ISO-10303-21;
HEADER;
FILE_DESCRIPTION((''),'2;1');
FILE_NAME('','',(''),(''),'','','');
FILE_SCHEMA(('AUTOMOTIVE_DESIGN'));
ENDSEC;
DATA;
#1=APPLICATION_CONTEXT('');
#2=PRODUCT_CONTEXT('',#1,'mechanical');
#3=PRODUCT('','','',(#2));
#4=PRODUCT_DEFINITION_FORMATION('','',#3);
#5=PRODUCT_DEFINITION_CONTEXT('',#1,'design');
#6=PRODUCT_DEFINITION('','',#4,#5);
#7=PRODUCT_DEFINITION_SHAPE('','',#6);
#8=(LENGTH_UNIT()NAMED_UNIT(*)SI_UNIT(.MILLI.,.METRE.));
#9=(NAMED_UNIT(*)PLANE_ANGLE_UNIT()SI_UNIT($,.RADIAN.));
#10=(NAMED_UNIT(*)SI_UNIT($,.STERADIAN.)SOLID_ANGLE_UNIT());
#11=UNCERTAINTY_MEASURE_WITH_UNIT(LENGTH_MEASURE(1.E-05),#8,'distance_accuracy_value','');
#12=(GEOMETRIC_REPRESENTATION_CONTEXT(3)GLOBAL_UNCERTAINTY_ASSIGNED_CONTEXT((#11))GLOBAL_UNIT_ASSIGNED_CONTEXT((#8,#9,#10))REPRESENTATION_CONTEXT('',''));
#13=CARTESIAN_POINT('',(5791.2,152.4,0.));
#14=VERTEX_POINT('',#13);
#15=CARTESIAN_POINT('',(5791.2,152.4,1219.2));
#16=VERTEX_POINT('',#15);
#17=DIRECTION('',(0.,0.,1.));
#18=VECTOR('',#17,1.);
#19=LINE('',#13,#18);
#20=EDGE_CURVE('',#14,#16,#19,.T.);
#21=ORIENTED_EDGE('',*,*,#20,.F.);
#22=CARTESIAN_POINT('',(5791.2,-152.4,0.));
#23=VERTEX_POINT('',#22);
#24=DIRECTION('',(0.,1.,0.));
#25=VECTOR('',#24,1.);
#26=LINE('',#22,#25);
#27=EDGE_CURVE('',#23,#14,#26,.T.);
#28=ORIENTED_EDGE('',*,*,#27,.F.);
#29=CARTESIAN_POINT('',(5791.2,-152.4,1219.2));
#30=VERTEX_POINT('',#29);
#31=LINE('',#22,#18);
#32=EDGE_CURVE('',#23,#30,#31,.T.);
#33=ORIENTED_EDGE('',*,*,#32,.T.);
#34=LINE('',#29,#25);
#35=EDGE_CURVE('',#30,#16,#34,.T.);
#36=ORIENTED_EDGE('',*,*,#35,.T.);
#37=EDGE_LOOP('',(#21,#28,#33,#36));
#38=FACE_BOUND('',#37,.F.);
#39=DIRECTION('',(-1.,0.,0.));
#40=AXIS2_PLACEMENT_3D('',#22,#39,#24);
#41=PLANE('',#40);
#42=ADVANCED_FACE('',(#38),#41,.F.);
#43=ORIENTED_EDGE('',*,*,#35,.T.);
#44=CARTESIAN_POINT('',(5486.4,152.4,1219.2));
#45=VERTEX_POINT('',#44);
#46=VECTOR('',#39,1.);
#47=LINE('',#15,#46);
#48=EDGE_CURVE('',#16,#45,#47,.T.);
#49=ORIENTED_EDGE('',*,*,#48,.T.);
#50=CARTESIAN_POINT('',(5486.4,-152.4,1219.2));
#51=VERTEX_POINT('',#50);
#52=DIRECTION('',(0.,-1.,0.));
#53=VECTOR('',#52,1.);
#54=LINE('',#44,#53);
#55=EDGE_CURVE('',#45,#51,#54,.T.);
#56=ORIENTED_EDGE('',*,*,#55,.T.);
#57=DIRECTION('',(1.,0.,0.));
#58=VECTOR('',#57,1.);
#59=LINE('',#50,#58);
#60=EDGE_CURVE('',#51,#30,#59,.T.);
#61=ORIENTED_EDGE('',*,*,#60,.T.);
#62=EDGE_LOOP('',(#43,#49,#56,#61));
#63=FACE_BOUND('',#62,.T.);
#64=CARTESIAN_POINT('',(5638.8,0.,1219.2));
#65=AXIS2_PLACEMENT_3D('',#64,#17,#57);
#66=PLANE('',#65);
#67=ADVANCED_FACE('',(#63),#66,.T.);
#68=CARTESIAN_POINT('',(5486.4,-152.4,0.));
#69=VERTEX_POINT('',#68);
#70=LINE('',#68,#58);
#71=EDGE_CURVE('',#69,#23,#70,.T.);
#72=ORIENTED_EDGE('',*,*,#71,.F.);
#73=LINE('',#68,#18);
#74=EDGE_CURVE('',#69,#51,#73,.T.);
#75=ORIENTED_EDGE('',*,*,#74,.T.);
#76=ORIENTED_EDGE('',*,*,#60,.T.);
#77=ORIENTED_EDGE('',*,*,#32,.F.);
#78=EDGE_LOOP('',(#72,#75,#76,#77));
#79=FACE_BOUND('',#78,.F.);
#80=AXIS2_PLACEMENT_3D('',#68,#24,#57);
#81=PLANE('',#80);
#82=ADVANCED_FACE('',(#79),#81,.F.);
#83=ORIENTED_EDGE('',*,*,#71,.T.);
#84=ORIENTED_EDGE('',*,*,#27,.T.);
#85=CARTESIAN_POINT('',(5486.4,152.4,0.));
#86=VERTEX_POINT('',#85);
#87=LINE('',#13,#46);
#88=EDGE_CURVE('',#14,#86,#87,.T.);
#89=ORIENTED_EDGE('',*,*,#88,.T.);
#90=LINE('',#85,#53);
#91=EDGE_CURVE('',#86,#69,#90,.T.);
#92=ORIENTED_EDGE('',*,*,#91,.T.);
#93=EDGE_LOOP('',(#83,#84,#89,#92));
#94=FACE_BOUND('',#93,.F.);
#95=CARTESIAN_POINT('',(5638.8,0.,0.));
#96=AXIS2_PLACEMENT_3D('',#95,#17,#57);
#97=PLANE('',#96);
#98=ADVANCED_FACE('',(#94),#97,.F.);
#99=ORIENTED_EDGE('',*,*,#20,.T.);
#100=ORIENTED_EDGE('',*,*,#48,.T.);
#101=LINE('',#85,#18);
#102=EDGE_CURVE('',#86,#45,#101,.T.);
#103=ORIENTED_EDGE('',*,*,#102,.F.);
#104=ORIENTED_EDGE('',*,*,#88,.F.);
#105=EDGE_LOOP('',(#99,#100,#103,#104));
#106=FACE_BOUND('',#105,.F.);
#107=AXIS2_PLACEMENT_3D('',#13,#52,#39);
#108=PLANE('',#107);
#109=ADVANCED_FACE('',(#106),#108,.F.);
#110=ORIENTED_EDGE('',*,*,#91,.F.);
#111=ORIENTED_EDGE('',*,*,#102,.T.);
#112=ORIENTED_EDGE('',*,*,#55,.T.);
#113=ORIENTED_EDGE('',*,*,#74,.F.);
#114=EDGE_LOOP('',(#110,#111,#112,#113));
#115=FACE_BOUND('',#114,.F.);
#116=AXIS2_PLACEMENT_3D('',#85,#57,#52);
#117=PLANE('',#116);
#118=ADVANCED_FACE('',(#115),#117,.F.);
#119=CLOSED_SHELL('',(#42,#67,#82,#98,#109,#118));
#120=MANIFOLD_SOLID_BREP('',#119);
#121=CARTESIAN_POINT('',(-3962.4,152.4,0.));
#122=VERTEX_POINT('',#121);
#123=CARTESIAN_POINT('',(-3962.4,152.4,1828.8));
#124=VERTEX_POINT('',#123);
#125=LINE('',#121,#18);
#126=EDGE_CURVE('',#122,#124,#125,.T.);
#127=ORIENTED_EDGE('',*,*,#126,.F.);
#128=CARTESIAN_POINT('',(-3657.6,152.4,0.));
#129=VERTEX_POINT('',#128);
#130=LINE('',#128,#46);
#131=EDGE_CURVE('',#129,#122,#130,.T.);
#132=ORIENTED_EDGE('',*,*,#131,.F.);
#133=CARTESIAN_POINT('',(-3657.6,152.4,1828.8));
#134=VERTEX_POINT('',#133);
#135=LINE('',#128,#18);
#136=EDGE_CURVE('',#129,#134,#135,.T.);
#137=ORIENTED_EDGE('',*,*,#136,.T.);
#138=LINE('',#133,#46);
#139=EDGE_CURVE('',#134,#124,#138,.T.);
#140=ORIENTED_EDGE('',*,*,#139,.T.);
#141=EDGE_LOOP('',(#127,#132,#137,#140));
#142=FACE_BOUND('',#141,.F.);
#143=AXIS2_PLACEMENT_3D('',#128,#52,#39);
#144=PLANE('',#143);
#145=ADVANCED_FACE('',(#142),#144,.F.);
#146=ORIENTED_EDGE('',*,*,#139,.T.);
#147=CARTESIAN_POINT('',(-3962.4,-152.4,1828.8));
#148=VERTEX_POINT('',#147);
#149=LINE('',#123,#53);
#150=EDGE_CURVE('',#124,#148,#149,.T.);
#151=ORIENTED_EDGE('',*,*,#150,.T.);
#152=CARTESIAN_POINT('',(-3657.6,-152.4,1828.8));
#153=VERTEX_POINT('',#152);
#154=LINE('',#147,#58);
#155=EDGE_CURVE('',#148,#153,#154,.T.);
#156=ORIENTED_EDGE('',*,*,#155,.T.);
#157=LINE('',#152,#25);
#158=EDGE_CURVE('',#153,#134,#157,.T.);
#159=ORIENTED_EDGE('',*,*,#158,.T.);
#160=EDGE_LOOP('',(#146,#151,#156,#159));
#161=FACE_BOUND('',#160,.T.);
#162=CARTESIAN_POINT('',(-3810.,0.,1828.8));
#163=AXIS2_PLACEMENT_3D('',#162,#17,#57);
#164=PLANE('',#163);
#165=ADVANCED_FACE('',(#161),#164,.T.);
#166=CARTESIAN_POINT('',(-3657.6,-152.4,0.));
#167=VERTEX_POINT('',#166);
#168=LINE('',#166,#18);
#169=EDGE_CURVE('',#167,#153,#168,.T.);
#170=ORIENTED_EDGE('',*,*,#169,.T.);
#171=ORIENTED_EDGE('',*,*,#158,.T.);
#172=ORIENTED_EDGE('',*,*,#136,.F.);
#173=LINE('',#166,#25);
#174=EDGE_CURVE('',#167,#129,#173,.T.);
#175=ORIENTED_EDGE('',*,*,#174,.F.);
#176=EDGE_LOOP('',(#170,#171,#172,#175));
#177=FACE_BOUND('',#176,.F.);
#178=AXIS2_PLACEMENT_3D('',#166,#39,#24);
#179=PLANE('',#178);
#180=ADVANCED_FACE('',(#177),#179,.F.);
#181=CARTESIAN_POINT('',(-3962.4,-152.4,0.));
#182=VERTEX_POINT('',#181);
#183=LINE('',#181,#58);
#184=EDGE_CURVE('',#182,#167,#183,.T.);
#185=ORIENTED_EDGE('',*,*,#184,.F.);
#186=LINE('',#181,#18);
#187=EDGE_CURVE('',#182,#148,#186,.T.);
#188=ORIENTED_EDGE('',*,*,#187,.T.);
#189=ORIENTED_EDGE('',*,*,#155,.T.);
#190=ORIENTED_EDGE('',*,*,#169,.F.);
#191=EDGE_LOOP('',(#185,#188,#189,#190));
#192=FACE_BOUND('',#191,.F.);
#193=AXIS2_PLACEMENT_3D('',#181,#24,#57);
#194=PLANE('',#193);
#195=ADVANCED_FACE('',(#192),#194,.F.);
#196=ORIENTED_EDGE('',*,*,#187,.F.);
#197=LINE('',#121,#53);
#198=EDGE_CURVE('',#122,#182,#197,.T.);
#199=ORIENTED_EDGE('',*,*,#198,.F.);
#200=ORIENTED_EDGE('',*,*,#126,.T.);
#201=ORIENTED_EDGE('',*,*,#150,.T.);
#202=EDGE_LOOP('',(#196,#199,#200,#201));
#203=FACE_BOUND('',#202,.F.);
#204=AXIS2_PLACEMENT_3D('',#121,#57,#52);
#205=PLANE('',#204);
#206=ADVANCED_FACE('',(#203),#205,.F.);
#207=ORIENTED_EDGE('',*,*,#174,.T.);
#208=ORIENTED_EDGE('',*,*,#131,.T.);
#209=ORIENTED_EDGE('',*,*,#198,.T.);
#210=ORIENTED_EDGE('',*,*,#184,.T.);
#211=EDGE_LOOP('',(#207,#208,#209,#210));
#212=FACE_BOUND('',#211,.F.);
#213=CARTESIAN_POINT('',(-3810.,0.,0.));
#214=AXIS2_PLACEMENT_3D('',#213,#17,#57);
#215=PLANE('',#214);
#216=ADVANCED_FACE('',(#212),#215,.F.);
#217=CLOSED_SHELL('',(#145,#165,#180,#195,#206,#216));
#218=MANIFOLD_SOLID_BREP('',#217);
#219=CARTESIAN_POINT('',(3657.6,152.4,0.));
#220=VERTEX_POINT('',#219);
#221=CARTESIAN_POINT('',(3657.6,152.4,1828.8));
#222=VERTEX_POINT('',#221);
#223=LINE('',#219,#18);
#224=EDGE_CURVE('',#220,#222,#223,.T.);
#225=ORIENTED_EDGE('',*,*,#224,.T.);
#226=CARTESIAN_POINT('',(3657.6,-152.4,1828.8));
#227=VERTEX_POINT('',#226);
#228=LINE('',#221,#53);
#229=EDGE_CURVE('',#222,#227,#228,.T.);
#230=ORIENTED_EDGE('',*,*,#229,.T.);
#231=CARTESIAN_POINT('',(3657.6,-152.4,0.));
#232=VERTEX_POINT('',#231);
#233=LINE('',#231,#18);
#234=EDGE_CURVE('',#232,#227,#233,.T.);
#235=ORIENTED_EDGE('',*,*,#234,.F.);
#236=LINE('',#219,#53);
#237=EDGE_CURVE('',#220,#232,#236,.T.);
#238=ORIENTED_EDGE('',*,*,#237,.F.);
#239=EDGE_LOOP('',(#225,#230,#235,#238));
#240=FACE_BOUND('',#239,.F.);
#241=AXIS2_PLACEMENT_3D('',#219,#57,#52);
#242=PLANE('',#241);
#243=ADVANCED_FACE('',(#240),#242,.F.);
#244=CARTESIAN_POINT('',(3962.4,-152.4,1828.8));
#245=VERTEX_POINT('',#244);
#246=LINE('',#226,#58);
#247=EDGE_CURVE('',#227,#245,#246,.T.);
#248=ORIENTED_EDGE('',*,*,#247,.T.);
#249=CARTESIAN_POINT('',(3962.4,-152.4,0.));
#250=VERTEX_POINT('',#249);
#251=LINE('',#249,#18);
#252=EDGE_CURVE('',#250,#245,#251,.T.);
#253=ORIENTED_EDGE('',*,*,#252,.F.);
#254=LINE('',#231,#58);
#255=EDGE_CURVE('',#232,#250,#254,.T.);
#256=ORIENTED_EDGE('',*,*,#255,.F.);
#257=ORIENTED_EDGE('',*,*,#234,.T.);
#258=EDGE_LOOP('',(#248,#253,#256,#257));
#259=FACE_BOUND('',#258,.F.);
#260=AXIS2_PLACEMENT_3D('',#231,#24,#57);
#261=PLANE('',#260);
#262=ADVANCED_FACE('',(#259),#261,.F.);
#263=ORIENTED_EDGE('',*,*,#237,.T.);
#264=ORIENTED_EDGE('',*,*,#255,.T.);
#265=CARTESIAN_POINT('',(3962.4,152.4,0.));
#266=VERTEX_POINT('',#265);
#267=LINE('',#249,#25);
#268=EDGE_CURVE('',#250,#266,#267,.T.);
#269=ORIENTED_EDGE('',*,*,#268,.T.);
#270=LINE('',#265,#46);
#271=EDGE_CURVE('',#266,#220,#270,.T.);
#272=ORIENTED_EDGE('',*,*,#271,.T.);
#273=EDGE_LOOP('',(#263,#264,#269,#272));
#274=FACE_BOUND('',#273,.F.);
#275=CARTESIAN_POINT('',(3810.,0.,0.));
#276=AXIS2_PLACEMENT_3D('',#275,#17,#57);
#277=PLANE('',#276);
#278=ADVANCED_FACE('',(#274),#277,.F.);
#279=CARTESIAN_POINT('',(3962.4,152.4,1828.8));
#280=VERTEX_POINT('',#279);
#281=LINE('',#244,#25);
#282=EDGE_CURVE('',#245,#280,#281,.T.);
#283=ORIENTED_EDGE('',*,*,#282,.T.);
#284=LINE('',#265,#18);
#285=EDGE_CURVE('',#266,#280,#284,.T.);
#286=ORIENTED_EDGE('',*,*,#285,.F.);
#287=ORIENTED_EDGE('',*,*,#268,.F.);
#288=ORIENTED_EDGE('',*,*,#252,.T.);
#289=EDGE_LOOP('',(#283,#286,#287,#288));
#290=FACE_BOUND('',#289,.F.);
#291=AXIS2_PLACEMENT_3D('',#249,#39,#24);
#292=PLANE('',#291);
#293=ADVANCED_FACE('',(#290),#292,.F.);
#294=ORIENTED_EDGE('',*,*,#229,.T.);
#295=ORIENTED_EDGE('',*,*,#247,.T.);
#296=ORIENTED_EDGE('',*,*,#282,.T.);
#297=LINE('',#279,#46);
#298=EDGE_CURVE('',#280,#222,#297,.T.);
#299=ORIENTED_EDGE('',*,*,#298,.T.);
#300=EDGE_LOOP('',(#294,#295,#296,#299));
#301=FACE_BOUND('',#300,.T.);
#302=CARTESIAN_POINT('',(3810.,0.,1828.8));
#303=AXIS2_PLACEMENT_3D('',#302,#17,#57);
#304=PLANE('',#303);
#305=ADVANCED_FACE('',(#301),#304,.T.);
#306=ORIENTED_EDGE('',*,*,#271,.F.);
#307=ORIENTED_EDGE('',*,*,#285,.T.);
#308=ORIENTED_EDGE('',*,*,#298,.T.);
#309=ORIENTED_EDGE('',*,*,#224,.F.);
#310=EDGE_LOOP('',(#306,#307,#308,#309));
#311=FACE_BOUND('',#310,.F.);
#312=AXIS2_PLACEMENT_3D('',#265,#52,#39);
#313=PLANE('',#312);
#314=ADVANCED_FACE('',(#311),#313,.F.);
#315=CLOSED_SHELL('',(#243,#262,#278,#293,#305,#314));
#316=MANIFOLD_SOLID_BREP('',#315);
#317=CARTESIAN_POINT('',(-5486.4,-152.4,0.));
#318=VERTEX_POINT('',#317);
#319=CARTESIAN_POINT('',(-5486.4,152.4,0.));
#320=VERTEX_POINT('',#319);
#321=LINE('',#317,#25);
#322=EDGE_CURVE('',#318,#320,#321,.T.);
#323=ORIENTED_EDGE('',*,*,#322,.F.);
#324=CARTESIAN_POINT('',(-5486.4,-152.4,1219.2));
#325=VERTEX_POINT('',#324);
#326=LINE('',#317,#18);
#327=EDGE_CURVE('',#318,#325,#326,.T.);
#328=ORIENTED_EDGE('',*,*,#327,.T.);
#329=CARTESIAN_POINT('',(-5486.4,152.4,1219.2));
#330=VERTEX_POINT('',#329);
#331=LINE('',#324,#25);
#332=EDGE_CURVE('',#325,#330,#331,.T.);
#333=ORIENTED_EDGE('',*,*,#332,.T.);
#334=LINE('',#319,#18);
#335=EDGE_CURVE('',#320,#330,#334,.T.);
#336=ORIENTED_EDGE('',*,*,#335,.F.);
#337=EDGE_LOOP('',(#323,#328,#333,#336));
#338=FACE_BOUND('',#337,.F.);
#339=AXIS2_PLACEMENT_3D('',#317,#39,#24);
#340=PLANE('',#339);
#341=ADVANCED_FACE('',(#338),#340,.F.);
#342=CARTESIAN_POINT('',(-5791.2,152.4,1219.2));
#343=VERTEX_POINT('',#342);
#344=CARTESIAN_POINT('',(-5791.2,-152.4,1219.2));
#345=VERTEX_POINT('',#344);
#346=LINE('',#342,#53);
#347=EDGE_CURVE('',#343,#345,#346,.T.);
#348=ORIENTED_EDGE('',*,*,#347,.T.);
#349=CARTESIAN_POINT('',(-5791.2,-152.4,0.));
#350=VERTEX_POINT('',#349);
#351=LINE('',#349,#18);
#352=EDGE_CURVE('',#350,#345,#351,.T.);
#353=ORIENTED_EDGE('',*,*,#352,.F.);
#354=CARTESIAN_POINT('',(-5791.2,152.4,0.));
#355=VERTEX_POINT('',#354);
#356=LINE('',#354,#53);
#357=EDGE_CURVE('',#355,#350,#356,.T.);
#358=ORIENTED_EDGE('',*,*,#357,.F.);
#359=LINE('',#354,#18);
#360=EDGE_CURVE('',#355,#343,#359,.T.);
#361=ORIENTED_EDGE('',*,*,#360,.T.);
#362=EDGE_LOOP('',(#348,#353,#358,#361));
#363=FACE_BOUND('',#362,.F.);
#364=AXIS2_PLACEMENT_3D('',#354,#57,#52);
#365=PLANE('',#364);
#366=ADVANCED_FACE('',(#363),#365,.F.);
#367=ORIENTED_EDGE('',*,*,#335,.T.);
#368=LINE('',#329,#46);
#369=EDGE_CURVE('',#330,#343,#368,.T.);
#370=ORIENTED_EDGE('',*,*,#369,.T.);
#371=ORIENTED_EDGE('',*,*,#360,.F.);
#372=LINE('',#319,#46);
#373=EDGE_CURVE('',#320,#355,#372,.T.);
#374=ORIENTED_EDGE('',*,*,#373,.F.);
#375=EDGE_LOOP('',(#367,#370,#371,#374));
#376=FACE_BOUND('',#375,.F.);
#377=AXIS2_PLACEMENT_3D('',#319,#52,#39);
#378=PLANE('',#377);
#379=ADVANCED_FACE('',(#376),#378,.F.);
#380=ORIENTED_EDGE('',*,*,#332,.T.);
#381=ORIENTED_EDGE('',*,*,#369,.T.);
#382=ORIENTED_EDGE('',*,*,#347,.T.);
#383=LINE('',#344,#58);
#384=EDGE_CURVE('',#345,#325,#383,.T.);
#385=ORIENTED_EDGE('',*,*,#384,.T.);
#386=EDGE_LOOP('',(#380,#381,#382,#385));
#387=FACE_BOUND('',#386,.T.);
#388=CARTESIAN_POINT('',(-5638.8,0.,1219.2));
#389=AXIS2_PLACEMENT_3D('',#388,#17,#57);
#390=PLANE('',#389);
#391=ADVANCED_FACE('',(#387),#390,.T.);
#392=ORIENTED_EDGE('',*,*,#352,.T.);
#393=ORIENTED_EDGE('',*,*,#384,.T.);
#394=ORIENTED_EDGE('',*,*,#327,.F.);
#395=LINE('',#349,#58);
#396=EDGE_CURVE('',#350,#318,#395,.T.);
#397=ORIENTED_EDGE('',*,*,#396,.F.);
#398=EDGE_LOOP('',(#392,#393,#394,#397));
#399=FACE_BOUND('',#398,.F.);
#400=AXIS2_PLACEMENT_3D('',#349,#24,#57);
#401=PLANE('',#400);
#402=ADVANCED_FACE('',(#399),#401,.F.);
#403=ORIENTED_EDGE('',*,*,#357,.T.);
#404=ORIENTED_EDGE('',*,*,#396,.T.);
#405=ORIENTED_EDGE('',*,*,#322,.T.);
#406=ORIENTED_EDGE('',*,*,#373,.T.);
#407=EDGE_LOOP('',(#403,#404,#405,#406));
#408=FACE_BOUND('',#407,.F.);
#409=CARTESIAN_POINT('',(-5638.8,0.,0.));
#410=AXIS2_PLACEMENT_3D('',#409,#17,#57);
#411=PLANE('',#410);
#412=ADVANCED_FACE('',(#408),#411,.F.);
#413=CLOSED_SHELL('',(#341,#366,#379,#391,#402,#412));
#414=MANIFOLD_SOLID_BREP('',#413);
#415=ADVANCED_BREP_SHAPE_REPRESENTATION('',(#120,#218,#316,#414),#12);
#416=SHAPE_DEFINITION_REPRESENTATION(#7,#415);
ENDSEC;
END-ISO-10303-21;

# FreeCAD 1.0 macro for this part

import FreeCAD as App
import Part
import Sketcher
Q = App.Units.Quantity

doc = App.newDocument("Part")
params = doc.addObject("Spreadsheet::Sheet", "Params")
for row, (alias, value) in enumerate([
    ("sketch1_width", "12 in"),
    ("pad1_length", "72 in"),
    ("sketch2_width", "12 in"),
    ("pad2_length", "48 in"),
], start=1):
    params.set(f"A{row}", alias)
    params.set(f"B{row}", "=" + value)
    params.setAlias(f"B{row}", alias)

body = doc.addObject("PartDesign::Body", "Body")
body.AllowCompound = True

# Sketch on XY plane
sketch1 = body.newObject("Sketcher::SketchObject", "Sketch")
sketch1.AttachmentSupport = (doc.getObject("XY_Plane"), [""])
sketch1.MapMode = "FlatFace"
sketch1.addGeometry([
    Part.LineSegment(App.Vector(-3658, -152, 0), App.Vector(-3658, 152, 0)),  # 0
    Part.LineSegment(App.Vector(-3658, 152, 0), App.Vector(-3962, 152, 0)),  # 1
    Part.LineSegment(App.Vector(-3962, 152, 0), App.Vector(-3962, -152, 0)),  # 2
    Part.LineSegment(App.Vector(-3962, -152, 0), App.Vector(-3658, -152, 0)),  # 3
    Part.LineSegment(App.Vector(3658, 152, 0), App.Vector(3658, -152, 0)),  # 4
    Part.LineSegment(App.Vector(3658, -152, 0), App.Vector(3962, -152, 0)),  # 5
    Part.LineSegment(App.Vector(3962, -152, 0), App.Vector(3962, 152, 0)),  # 6
    Part.LineSegment(App.Vector(3962, 152, 0), App.Vector(3658, 152, 0)),  # 7
], False)
sketch1.addConstraint([
    Sketcher.Constraint("Coincident", 0, 2, 1, 1),
    Sketcher.Constraint("Coincident", 1, 2, 2, 1),
    Sketcher.Constraint("Coincident", 2, 2, 3, 1),
    Sketcher.Constraint("Coincident", 3, 2, 0, 1),
    Sketcher.Constraint("Coincident", 4, 2, 5, 1),
    Sketcher.Constraint("Coincident", 5, 2, 6, 1),
    Sketcher.Constraint("Coincident", 6, 2, 7, 1),
    Sketcher.Constraint("Coincident", 7, 2, 4, 1),
    Sketcher.Constraint("Vertical", 0),
    Sketcher.Constraint("Horizontal", 1),
    Sketcher.Constraint("Vertical", 2),
    Sketcher.Constraint("Horizontal", 3),
    Sketcher.Constraint("Vertical", 4),
    Sketcher.Constraint("Horizontal", 5),
    Sketcher.Constraint("Vertical", 6),
    Sketcher.Constraint("Horizontal", 7),
    Sketcher.Constraint("Symmetric", 0, 2, 4, 2, -1, 1),
    Sketcher.Constraint("Symmetric", 2, 2, 6, 2, -1, 1),
    Sketcher.Constraint("Horizontal", 3, 2, 4, 2),
    Sketcher.Constraint("Equal", 7, 0),
    Sketcher.Constraint("DistanceX", 1, 2, 1, 1, Q("12 in")),
    Sketcher.Constraint("DistanceX", 0, 2, -1, 1, Q("144 in")),
])
sketch1.setExpression("Constraints[20]", "Params.sketch1_width")
pad1 = body.newObject("PartDesign::Pad", "Pad")
pad1.Profile = sketch1
pad1.setExpression("Length", "Params.pad1_length")
body2 = doc.addObject("PartDesign::Body", "Body001")
body2.AllowCompound = True

# Sketch on XY plane
sketch2 = body2.newObject("Sketcher::SketchObject", "Sketch001")
sketch2.AttachmentSupport = (doc.getObject("XY_Plane001"), [""])
sketch2.MapMode = "FlatFace"
sketch2.addGeometry([
    Part.LineSegment(App.Vector(-5486, -152, 0), App.Vector(-5486, 152, 0)),  # 0
    Part.LineSegment(App.Vector(-5486, 152, 0), App.Vector(-5791, 152, 0)),  # 1
    Part.LineSegment(App.Vector(-5791, 152, 0), App.Vector(-5791, -152, 0)),  # 2
    Part.LineSegment(App.Vector(-5791, -152, 0), App.Vector(-5486, -152, 0)),  # 3
    Part.LineSegment(App.Vector(5486, 152, 0), App.Vector(5486, -152, 0)),  # 4
    Part.LineSegment(App.Vector(5486, -152, 0), App.Vector(5791, -152, 0)),  # 5
    Part.LineSegment(App.Vector(5791, -152, 0), App.Vector(5791, 152, 0)),  # 6
    Part.LineSegment(App.Vector(5791, 152, 0), App.Vector(5486, 152, 0)),  # 7
], False)
sketch2.addConstraint([
    Sketcher.Constraint("Coincident", 0, 2, 1, 1),
    Sketcher.Constraint("Coincident", 1, 2, 2, 1),
    Sketcher.Constraint("Coincident", 2, 2, 3, 1),
    Sketcher.Constraint("Coincident", 3, 2, 0, 1),
    Sketcher.Constraint("Coincident", 4, 2, 5, 1),
    Sketcher.Constraint("Coincident", 5, 2, 6, 1),
    Sketcher.Constraint("Coincident", 6, 2, 7, 1),
    Sketcher.Constraint("Coincident", 7, 2, 4, 1),
    Sketcher.Constraint("Vertical", 0),
    Sketcher.Constraint("Horizontal", 1),
    Sketcher.Constraint("Vertical", 2),
    Sketcher.Constraint("Horizontal", 3),
    Sketcher.Constraint("Vertical", 4),
    Sketcher.Constraint("Horizontal", 5),
    Sketcher.Constraint("Vertical", 6),
    Sketcher.Constraint("Horizontal", 7),
    Sketcher.Constraint("Symmetric", 0, 2, 4, 2, -1, 1),
    Sketcher.Constraint("Symmetric", 2, 2, 6, 2, -1, 1),
    Sketcher.Constraint("Horizontal", 3, 2, 4, 2),
    Sketcher.Constraint("Equal", 7, 0),
    Sketcher.Constraint("DistanceX", 1, 2, 1, 1, Q("12 in")),
    Sketcher.Constraint("DistanceX", 0, 2, -1, 1, Q("216 in")),
])
sketch2.setExpression("Constraints[20]", "Params.sketch2_width")
pad2 = body2.newObject("PartDesign::Pad", "Pad001")
pad2.Profile = sketch2
pad2.setExpression("Length", "Params.pad2_length")

doc.recompute()
